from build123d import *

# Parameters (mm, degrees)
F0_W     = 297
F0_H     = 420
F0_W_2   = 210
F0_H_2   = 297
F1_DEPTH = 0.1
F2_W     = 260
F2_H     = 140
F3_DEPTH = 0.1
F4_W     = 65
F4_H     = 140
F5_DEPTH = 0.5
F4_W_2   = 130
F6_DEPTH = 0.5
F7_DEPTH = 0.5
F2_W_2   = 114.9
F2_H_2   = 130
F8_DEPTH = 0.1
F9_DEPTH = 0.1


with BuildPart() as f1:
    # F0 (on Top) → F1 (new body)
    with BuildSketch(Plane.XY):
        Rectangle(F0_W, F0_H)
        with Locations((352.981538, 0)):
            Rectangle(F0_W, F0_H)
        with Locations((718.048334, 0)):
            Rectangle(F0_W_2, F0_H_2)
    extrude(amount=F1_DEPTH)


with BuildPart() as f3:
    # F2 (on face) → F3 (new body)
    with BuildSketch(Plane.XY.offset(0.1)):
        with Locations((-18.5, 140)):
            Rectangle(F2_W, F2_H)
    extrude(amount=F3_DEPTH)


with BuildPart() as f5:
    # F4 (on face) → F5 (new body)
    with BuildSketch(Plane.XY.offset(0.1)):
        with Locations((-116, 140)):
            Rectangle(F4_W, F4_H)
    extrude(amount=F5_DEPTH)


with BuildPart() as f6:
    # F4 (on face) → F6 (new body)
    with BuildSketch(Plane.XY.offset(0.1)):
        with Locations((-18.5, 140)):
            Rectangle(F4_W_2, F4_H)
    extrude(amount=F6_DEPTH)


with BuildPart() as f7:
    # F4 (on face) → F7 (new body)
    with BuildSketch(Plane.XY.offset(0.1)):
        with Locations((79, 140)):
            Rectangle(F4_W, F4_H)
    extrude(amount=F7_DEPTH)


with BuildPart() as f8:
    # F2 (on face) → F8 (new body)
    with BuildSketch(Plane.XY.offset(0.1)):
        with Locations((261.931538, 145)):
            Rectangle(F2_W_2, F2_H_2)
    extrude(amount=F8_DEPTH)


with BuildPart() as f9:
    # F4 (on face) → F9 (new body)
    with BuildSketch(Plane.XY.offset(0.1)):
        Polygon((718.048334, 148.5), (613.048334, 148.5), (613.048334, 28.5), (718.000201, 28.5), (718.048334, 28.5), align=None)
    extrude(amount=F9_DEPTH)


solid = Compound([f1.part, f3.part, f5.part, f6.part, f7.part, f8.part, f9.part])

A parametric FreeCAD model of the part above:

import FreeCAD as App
import Part
import Sketcher
Q = App.Units.Quantity

doc = App.newDocument("Part")
body = doc.addObject("PartDesign::Body", "Body")
body.AllowCompound = True

# Sketch on XY plane
sketch1 = doc.addObject("Sketcher::SketchObject", "Sketch")
body.addObject(sketch1)
sketch1.AttachmentSupport = (doc.XY_Plane, [""])
sketch1.MapMode = "FlatFace"
sketch1.addGeometry([
    Part.LineSegment(App.Vector(-148, 210, 0), App.Vector(-148, -210, 0)),  # 0
    Part.LineSegment(App.Vector(-148, -210, 0), App.Vector(148, -210, 0)),  # 1
    Part.LineSegment(App.Vector(148, -210, 0), App.Vector(148, 210, 0)),  # 2
    Part.LineSegment(App.Vector(148, 210, 0), App.Vector(-148, 210, 0)),  # 3
    Part.LineSegment(App.Vector(204, 210, 0), App.Vector(204, -210, 0)),  # 4
    Part.LineSegment(App.Vector(204, -210, 0), App.Vector(501, -210, 0)),  # 5
    Part.LineSegment(App.Vector(501, -210, 0), App.Vector(501, 210, 0)),  # 6
    Part.LineSegment(App.Vector(501, 210, 0), App.Vector(204, 210, 0)),  # 7
    Part.LineSegment(App.Vector(613, 148, 0), App.Vector(613, -148, 0)),  # 8
    Part.LineSegment(App.Vector(613, -148, 0), App.Vector(823, -148, 0)),  # 9
    Part.LineSegment(App.Vector(823, -148, 0), App.Vector(823, 148, 0)),  # 10
    Part.LineSegment(App.Vector(823, 148, 0), App.Vector(613, 148, 0)),  # 11
], False)
sketch1.addConstraint([
    Sketcher.Constraint("Coincident", 0, 2, 1, 1),
    Sketcher.Constraint("Coincident", 1, 2, 2, 1),
    Sketcher.Constraint("Coincident", 2, 2, 3, 1),
    Sketcher.Constraint("Coincident", 3, 2, 0, 1),
    Sketcher.Constraint("Coincident", 4, 2, 5, 1),
    Sketcher.Constraint("Coincident", 5, 2, 6, 1),
    Sketcher.Constraint("Coincident", 6, 2, 7, 1),
    Sketcher.Constraint("Coincident", 7, 2, 4, 1),
    Sketcher.Constraint("Coincident", 8, 2, 9, 1),
    Sketcher.Constraint("Coincident", 9, 2, 10, 1),
    Sketcher.Constraint("Coincident", 10, 2, 11, 1),
    Sketcher.Constraint("Coincident", 11, 2, 8, 1),
    Sketcher.Constraint("Vertical", 0),
    Sketcher.Constraint("Horizontal", 1),
    Sketcher.Constraint("Vertical", 2),
    Sketcher.Constraint("Horizontal", 3),
    Sketcher.Constraint("Vertical", 4),
    Sketcher.Constraint("Horizontal", 5),
    Sketcher.Constraint("Vertical", 6),
    Sketcher.Constraint("Horizontal", 7),
    Sketcher.Constraint("Vertical", 8),
    Sketcher.Constraint("Horizontal", 9),
    Sketcher.Constraint("Vertical", 10),
    Sketcher.Constraint("Horizontal", 11),
    Sketcher.Constraint("Symmetric", 0, 2, 2, 2, -1, 1),
    Sketcher.Constraint("Horizontal", 1, 2, 4, 2),
    Sketcher.Constraint("Horizontal", 3, 2, 6, 2),
    Sketcher.Constraint("Equal", 3, 5),
    Sketcher.Constraint("Equal", 7, 8),
    Sketcher.Constraint("DistanceX", 1, 1, 1, 2, Q("297 mm")),
    Sketcher.Constraint("DistanceX", 9, 1, 9, 2, Q("210 mm")),
    Sketcher.Constraint("DistanceY", 0, 2, 0, 1, Q("420 mm")),
    Sketcher.Constraint("DistanceY", 8, 2, -1, 1, Q("148.5 mm")),
    Sketcher.Constraint("DistanceX", -1, 1, 4, 2, Q("204.481538 mm")),
    Sketcher.Constraint("DistanceX", -1, 1, 8, 2, Q("613.048334 mm")),
])
pad1 = doc.addObject("PartDesign::Pad", "Pad")
body.addObject(pad1)
pad1.Profile = sketch1
pad1.Length = 0.1
body2 = doc.addObject("PartDesign::Body", "Body001")

# Sketch on XY plane
sketch2 = doc.addObject("Sketcher::SketchObject", "Sketch001")
body2.addObject(sketch2)
sketch2.AttachmentSupport = (doc.getObject("XY_Plane001"), [""])
sketch2.MapMode = "FlatFace"
sketch2.AttachmentOffset = App.Placement(App.Vector(0, 0, 0.1), App.Rotation())
sketch2.addGeometry([
    Part.LineSegment(App.Vector(-148, 210, 0), App.Vector(-148, 70, 0)),
    Part.LineSegment(App.Vector(-148, 70, 0), App.Vector(112, 70, 0)),
    Part.LineSegment(App.Vector(112, 70, 0), App.Vector(112, 210, 0)),
    Part.LineSegment(App.Vector(112, 210, 0), App.Vector(-148, 210, 0)),
], False)
sketch2.addConstraint([
    Sketcher.Constraint("Coincident", 0, 2, 1, 1),
    Sketcher.Constraint("Coincident", 1, 2, 2, 1),
    Sketcher.Constraint("Coincident", 2, 2, 3, 1),
    Sketcher.Constraint("Coincident", 3, 2, 0, 1),
    Sketcher.Constraint("Vertical", 0),
    Sketcher.Constraint("Horizontal", 1),
    Sketcher.Constraint("Vertical", 2),
    Sketcher.Constraint("Horizontal", 3),
    Sketcher.Constraint("DistanceX", 1, 1, 1, 2, Q("260 mm")),
    Sketcher.Constraint("DistanceY", 0, 2, 0, 1, Q("140 mm")),
    Sketcher.Constraint("DistanceY", -1, 1, 0, 2, Q("70 mm")),
    Sketcher.Constraint("DistanceX", 0, 2, -1, 1, Q("148.5 mm")),
])
pad2 = doc.addObject("PartDesign::Pad", "Pad001")
body2.addObject(pad2)
pad2.Profile = sketch2
pad2.Length = 0.1
body3 = doc.addObject("PartDesign::Body", "Body002")

# Sketch on XY plane
sketch3 = doc.addObject("Sketcher::SketchObject", "Sketch002")
body3.addObject(sketch3)
sketch3.AttachmentSupport = (doc.getObject("XY_Plane002"), [""])
sketch3.MapMode = "FlatFace"
sketch3.AttachmentOffset = App.Placement(App.Vector(0, 0, 0.1), App.Rotation())
sketch3.addGeometry([
    Part.LineSegment(App.Vector(-148, 210, 0), App.Vector(-148, 70, 0)),
    Part.LineSegment(App.Vector(-148, 70, 0), App.Vector(-84, 70, 0)),
    Part.LineSegment(App.Vector(-84, 70, 0), App.Vector(-84, 210, 0)),
    Part.LineSegment(App.Vector(-84, 210, 0), App.Vector(-148, 210, 0)),
], False)
sketch3.addConstraint([
    Sketcher.Constraint("Coincident", 0, 2, 1, 1),
    Sketcher.Constraint("Coincident", 1, 2, 2, 1),
    Sketcher.Constraint("Coincident", 2, 2, 3, 1),
    Sketcher.Constraint("Coincident", 3, 2, 0, 1),
    Sketcher.Constraint("Vertical", 0),
    Sketcher.Constraint("Horizontal", 1),
    Sketcher.Constraint("Vertical", 2),
    Sketcher.Constraint("Horizontal", 3),
    Sketcher.Constraint("DistanceX", 1, 1, 1, 2, Q("65 mm")),
    Sketcher.Constraint("DistanceY", 0, 2, 0, 1, Q("140 mm")),
    Sketcher.Constraint("DistanceY", -1, 1, 0, 2, Q("70 mm")),
    Sketcher.Constraint("DistanceX", 0, 2, -1, 1, Q("148.5 mm")),
])
pad3 = doc.addObject("PartDesign::Pad", "Pad002")
body3.addObject(pad3)
pad3.Profile = sketch3
pad3.Length = 0.5
body4 = doc.addObject("PartDesign::Body", "Body003")

# Sketch on XY plane
sketch4 = doc.addObject("Sketcher::SketchObject", "Sketch003")
body4.addObject(sketch4)
sketch4.AttachmentSupport = (doc.getObject("XY_Plane003"), [""])
sketch4.MapMode = "FlatFace"
sketch4.AttachmentOffset = App.Placement(App.Vector(0, 0, 0.1), App.Rotation())
sketch4.addGeometry([
    Part.LineSegment(App.Vector(-84, 210, 0), App.Vector(-84, 70, 0)),
    Part.LineSegment(App.Vector(-84, 70, 0), App.Vector(46, 70, 0)),
    Part.LineSegment(App.Vector(46, 70, 0), App.Vector(46, 210, 0)),
    Part.LineSegment(App.Vector(46, 210, 0), App.Vector(-84, 210, 0)),
], False)
sketch4.addConstraint([
    Sketcher.Constraint("Coincident", 0, 2, 1, 1),
    Sketcher.Constraint("Coincident", 1, 2, 2, 1),
    Sketcher.Constraint("Coincident", 2, 2, 3, 1),
    Sketcher.Constraint("Coincident", 3, 2, 0, 1),
    Sketcher.Constraint("Vertical", 0),
    Sketcher.Constraint("Horizontal", 1),
    Sketcher.Constraint("Vertical", 2),
    Sketcher.Constraint("Horizontal", 3),
    Sketcher.Constraint("DistanceX", 1, 1, 1, 2, Q("130 mm")),
    Sketcher.Constraint("DistanceY", 0, 2, 0, 1, Q("140 mm")),
    Sketcher.Constraint("DistanceY", -1, 1, 0, 2, Q("70 mm")),
    Sketcher.Constraint("DistanceX", 0, 2, -1, 1, Q("83.5 mm")),
])
pad4 = doc.addObject("PartDesign::Pad", "Pad003")
body4.addObject(pad4)
pad4.Profile = sketch4
pad4.Length = 0.5
body5 = doc.addObject("PartDesign::Body", "Body004")

# Sketch on XY plane
sketch5 = doc.addObject("Sketcher::SketchObject", "Sketch004")
body5.addObject(sketch5)
sketch5.AttachmentSupport = (doc.getObject("XY_Plane004"), [""])
sketch5.MapMode = "FlatFace"
sketch5.AttachmentOffset = App.Placement(App.Vector(0, 0, 0.1), App.Rotation())
sketch5.addGeometry([
    Part.LineSegment(App.Vector(46, 210, 0), App.Vector(46, 70, 0)),
    Part.LineSegment(App.Vector(46, 70, 0), App.Vector(112, 70, 0)),
    Part.LineSegment(App.Vector(112, 70, 0), App.Vector(112, 210, 0)),
    Part.LineSegment(App.Vector(112, 210, 0), App.Vector(46, 210, 0)),
], False)
sketch5.addConstraint([
    Sketcher.Constraint("Coincident", 0, 2, 1, 1),
    Sketcher.Constraint("Coincident", 1, 2, 2, 1),
    Sketcher.Constraint("Coincident", 2, 2, 3, 1),
    Sketcher.Constraint("Coincident", 3, 2, 0, 1),
    Sketcher.Constraint("Vertical", 0),
    Sketcher.Constraint("Horizontal", 1),
    Sketcher.Constraint("Vertical", 2),
    Sketcher.Constraint("Horizontal", 3),
    Sketcher.Constraint("DistanceX", 1, 1, 1, 2, Q("65 mm")),
    Sketcher.Constraint("DistanceY", 0, 2, 0, 1, Q("140 mm")),
    Sketcher.Constraint("DistanceY", -1, 1, 0, 2, Q("70 mm")),
    Sketcher.Constraint("DistanceX", -1, 1, 0, 2, Q("46.5 mm")),
])
pad5 = doc.addObject("PartDesign::Pad", "Pad004")
body5.addObject(pad5)
pad5.Profile = sketch5
pad5.Length = 0.5
body6 = doc.addObject("PartDesign::Body", "Body005")

# Sketch on XY plane
sketch6 = doc.addObject("Sketcher::SketchObject", "Sketch005")
body6.addObject(sketch6)
sketch6.AttachmentSupport = (doc.getObject("XY_Plane005"), [""])
sketch6.MapMode = "FlatFace"
sketch6.AttachmentOffset = App.Placement(App.Vector(0, 0, 0.1), App.Rotation())
sketch6.addGeometry([
    Part.LineSegment(App.Vector(204, 210, 0), App.Vector(204, 80, 0)),
    Part.LineSegment(App.Vector(204, 80, 0), App.Vector(319, 80, 0)),
    Part.LineSegment(App.Vector(319, 80, 0), App.Vector(319, 210, 0)),
    Part.LineSegment(App.Vector(319, 210, 0), App.Vector(204, 210, 0)),
], False)
sketch6.addConstraint([
    Sketcher.Constraint("Coincident", 0, 2, 1, 1),
    Sketcher.Constraint("Coincident", 1, 2, 2, 1),
    Sketcher.Constraint("Coincident", 2, 2, 3, 1),
    Sketcher.Constraint("Coincident", 3, 2, 0, 1),
    Sketcher.Constraint("Vertical", 0),
    Sketcher.Constraint("Horizontal", 1),
    Sketcher.Constraint("Vertical", 2),
    Sketcher.Constraint("Horizontal", 3),
    Sketcher.Constraint("DistanceY", 0, 2, 0, 1, Q("130 mm")),
    Sketcher.Constraint("DistanceX", 1, 1, 1, 2, Q("114.9 mm")),
    Sketcher.Constraint("DistanceY", -1, 1, 0, 2, Q("80 mm")),
    Sketcher.Constraint("DistanceX", -1, 1, 0, 2, Q("204.481538 mm")),
])
pad6 = doc.addObject("PartDesign::Pad", "Pad005")
body6.addObject(pad6)
pad6.Profile = sketch6
pad6.Length = 0.1
body7 = doc.addObject("PartDesign::Body", "Body006")

# Sketch on XY plane
sketch7 = doc.addObject("Sketcher::SketchObject", "Sketch006")
body7.addObject(sketch7)
sketch7.AttachmentSupport = (doc.getObject("XY_Plane006"), [""])
sketch7.MapMode = "FlatFace"
sketch7.AttachmentOffset = App.Placement(App.Vector(0, 0, 0.1), App.Rotation())
sketch7.addGeometry([
    Part.LineSegment(App.Vector(718, 148, 0), App.Vector(613, 148, 0)),
    Part.LineSegment(App.Vector(613, 148, 0), App.Vector(613, 28, 0)),
    Part.LineSegment(App.Vector(613, 28, 0), App.Vector(718, 28, 0)),
    Part.LineSegment(App.Vector(718, 28, 0), App.Vector(718, 148, 0)),
], False)
sketch7.addConstraint([
    Sketcher.Constraint("Coincident", 0, 2, 1, 1),
    Sketcher.Constraint("Coincident", 1, 2, 2, 1),
    Sketcher.Constraint("Coincident", 2, 2, 3, 1),
    Sketcher.Constraint("Coincident", 3, 2, 0, 1),
    Sketcher.Constraint("Horizontal", 0),
    Sketcher.Constraint("Vertical", 1),
    Sketcher.Constraint("Horizontal", 2),
    Sketcher.Constraint("Vertical", 3),
    Sketcher.Constraint("DistanceX", 0, 2, 0, 1, Q("105 mm")),
    Sketcher.Constraint("DistanceY", 1, 2, 1, 1, Q("120 mm")),
    Sketcher.Constraint("DistanceY", -1, 1, 0, 2, Q("148.5 mm")),
    Sketcher.Constraint("DistanceX", -1, 1, 0, 2, Q("613.048334 mm")),
])
pad7 = doc.addObject("PartDesign::Pad", "Pad006")
body7.addObject(pad7)
pad7.Profile = sketch7
pad7.Length = 0.1

doc.recompute()
